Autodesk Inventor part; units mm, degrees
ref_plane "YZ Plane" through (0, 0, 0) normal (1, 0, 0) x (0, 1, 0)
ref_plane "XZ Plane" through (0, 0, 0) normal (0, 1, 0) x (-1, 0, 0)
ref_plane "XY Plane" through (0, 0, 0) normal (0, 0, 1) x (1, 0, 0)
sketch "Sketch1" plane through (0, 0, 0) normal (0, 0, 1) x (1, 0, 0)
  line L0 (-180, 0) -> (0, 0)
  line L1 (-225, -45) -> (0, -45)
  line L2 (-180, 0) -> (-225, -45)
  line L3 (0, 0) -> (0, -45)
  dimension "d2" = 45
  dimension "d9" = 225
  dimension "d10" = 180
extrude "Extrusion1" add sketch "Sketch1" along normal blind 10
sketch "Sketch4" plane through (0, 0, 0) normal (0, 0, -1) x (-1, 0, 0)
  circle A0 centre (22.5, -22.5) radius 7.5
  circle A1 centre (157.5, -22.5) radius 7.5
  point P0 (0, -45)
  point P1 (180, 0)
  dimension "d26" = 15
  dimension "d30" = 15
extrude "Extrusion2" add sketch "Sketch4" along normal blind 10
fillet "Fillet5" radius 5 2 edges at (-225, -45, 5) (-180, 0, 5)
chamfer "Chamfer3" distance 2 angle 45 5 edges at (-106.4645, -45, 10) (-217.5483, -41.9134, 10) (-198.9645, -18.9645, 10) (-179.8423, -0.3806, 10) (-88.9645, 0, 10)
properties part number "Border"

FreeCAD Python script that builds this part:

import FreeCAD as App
import Part
import Sketcher
from FreeCAD import Vector


def edges_at(feature, points):
    """Names of the edges that pass closest to the given points."""
    edges = feature.Shape.Edges
    near = lambda p: min(range(len(edges)), key=lambda i: edges[i].distToShape(Part.Vertex(*p))[0])
    return sorted({f"Edge{near(p) + 1}" for p in points})

doc = App.newDocument("Part")
body = doc.addObject("PartDesign::Body", "Body")

# Sketch on XY plane
sketch1 = doc.addObject("Sketcher::SketchObject", "Sketch")
body.addObject(sketch1)
sketch1.AttachmentSupport = (doc.XY_Plane, [""])
sketch1.MapMode = "FlatFace"
sketch1.addGeometry([
    Part.LineSegment(Vector(0, 0, 0), Vector(-180, 0, 0)),
    Part.LineSegment(Vector(-180, 0, 0), Vector(-225, -45, 0)),
    Part.LineSegment(Vector(-225, -45, 0), Vector(0, -45, 0)),
    Part.LineSegment(Vector(0, -45, 0), Vector(0, 0, 0)),
], False)
sketch1.addConstraint([
    Sketcher.Constraint("Coincident", 0, 2, 1, 1),
    Sketcher.Constraint("Coincident", 1, 2, 2, 1),
    Sketcher.Constraint("Coincident", 2, 2, 3, 1),
    Sketcher.Constraint("Coincident", 3, 2, 0, 1),
    Sketcher.Constraint("Horizontal", 0),
    Sketcher.Constraint("Horizontal", 2),
    Sketcher.Constraint("Vertical", 3),
    Sketcher.Constraint("Coincident", 3, 2, -1, 1),
    Sketcher.Constraint("DistanceX", 0, 2, 0, 1, 180.0),
    Sketcher.Constraint("DistanceX", 2, 1, 2, 2, 225.0),
    Sketcher.Constraint("DistanceY", 3, 1, 3, 2, 45.0),
])
pad1 = doc.addObject("PartDesign::Pad", "Pad")
body.addObject(pad1)
pad1.Profile = sketch1
pad1.Length = 10

# Sketch on XY plane
sketch2 = doc.addObject("Sketcher::SketchObject", "Sketch001")
body.addObject(sketch2)
sketch2.AttachmentSupport = (doc.XY_Plane, [""])
sketch2.MapMode = "FlatFace"
sketch2.addGeometry([
    Part.Circle(Vector(-22.5, -22.5, 0), Vector(0, 0, 1), 7.5),
    Part.Circle(Vector(-157.5, -22.5, 0), Vector(0, 0, 1), 7.5),
], False)
sketch2.addConstraint([
    Sketcher.Constraint("Equal", 0, 1),
    Sketcher.Constraint("Horizontal", 0, 3, 1, 3),
    Sketcher.Constraint("Diameter", 0, 15.0),
    Sketcher.Constraint("DistanceX", 1, 3, 0, 3, 135.0),
    Sketcher.Constraint("DistanceX", 0, 3, -1, 1, 22.5),
    Sketcher.Constraint("DistanceY", 0, 3, -1, 1, 22.5),
])
pad2 = doc.addObject("PartDesign::Pad", "Pad001")
body.addObject(pad2)
pad2.Profile = sketch2
pad2.Length = 10
pad2.Reversed = True
doc.recompute()

fillet = doc.addObject("PartDesign::Fillet", "Fillet")
body.addObject(fillet)
fillet.Base = (pad2, edges_at(pad2, [(-225, -45, 5), (-180, 0, 5)]))
fillet.Radius = 5
doc.recompute()

chamfer = doc.addObject("PartDesign::Chamfer", "Chamfer")
body.addObject(chamfer)
chamfer.Base = (fillet, edges_at(fillet, [
    (-106.465, -45, 10),
    (-217.548, -41.913, 10),
    (-198.964, -18.965, 10),
    (-179.842, -0.381, 10),
    (-88.965, 0, 10),
]))
chamfer.Size = 2

doc.recompute()
